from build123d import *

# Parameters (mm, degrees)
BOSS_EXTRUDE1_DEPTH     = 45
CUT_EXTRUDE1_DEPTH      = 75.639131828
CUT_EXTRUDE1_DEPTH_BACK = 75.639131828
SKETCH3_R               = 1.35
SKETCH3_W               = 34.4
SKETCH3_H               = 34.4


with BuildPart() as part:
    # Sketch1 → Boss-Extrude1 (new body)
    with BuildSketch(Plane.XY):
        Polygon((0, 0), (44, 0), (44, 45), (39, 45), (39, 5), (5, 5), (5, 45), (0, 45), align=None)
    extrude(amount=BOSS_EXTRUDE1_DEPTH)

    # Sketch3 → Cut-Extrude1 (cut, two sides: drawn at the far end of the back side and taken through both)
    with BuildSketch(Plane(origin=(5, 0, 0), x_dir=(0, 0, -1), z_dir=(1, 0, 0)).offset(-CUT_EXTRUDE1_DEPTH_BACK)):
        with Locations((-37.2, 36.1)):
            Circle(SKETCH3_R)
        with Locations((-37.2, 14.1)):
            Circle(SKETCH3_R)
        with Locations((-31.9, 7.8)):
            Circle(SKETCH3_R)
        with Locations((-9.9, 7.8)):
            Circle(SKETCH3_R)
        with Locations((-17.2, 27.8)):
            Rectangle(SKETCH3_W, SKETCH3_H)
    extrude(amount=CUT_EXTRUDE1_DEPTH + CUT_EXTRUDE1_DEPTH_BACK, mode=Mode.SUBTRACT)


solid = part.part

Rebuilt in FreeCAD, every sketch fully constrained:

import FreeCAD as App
import Part
import Sketcher

V = App.Vector

doc = App.newDocument("Part")
params = doc.addObject("Spreadsheet::Sheet", "Params")
for row, (alias, value) in enumerate([
    ("sketch1_width", "44 mm"),
    ("sketch1_width2", "5 mm"),
    ("sketch1_height", "45 mm"),
    ("sketch1_height2", "40 mm"),
    ("pad1_length", "45 mm"),
    ("sketch2_diameter", "2.7 mm"),
    ("sketch2_width", "34.4 mm"),
], start=1):
    params.set(f"A{row}", alias)
    params.set(f"B{row}", "=" + value)
    params.setAlias(f"B{row}", alias)

body = doc.addObject("PartDesign::Body", "Body")

# Sketch on XY plane
sketch1 = doc.addObject("Sketcher::SketchObject", "Sketch")
body.addObject(sketch1)
sketch1.AttachmentSupport = (doc.XY_Plane, [""])
sketch1.MapMode = "FlatFace"
sketch1.addGeometry([
    Part.LineSegment(V(0, 0, 0), V(44, 0, 0)),  # 0
    Part.LineSegment(V(44, 0, 0), V(44, 45, 0)),  # 1
    Part.LineSegment(V(44, 45, 0), V(39, 45, 0)),  # 2
    Part.LineSegment(V(39, 45, 0), V(39, 5, 0)),  # 3
    Part.LineSegment(V(39, 5, 0), V(5, 5, 0)),  # 4
    Part.LineSegment(V(5, 5, 0), V(5, 45, 0)),  # 5
    Part.LineSegment(V(5, 45, 0), V(0, 45, 0)),  # 6
    Part.LineSegment(V(0, 45, 0), V(0, 0, 0)),  # 7
], False)
sketch1.addConstraint([
    Sketcher.Constraint("Coincident", 0, 2, 1, 1),
    Sketcher.Constraint("Coincident", 1, 2, 2, 1),
    Sketcher.Constraint("Coincident", 2, 2, 3, 1),
    Sketcher.Constraint("Coincident", 3, 2, 4, 1),
    Sketcher.Constraint("Coincident", 4, 2, 5, 1),
    Sketcher.Constraint("Coincident", 5, 2, 6, 1),
    Sketcher.Constraint("Coincident", 6, 2, 7, 1),
    Sketcher.Constraint("Coincident", 7, 2, 0, 1),
    Sketcher.Constraint("Horizontal", 0),
    Sketcher.Constraint("Vertical", 1),
    Sketcher.Constraint("Horizontal", 2),
    Sketcher.Constraint("Vertical", 3),
    Sketcher.Constraint("Horizontal", 4),
    Sketcher.Constraint("Vertical", 5),
    Sketcher.Constraint("Horizontal", 6),
    Sketcher.Constraint("Vertical", 7),
    Sketcher.Constraint("Coincident", 7, 2, -1, 1),
    Sketcher.Constraint("Horizontal", 2, 2, 5, 2),
    Sketcher.Constraint("Equal", 2, 6),
    Sketcher.Constraint("DistanceX", 0, 1, 0, 2, 44.0),
    Sketcher.Constraint("DistanceX", 2, 2, 2, 1, 5.0),
    Sketcher.Constraint("DistanceY", 1, 1, 1, 2, 45.0),
    Sketcher.Constraint("DistanceY", 3, 2, 3, 1, 40.0),
])
sketch1.setExpression("Constraints[19]", "Params.sketch1_width")
sketch1.setExpression("Constraints[20]", "Params.sketch1_width2")
sketch1.setExpression("Constraints[21]", "Params.sketch1_height")
sketch1.setExpression("Constraints[22]", "Params.sketch1_height2")
pad1 = doc.addObject("PartDesign::Pad", "Pad")
body.addObject(pad1)
pad1.Profile = sketch1
pad1.setExpression("Length", "Params.pad1_length")

# Sketch on YZ plane
sketch2 = doc.addObject("Sketcher::SketchObject", "Sketch001")
body.addObject(sketch2)
sketch2.AttachmentSupport = (doc.YZ_Plane, [""])
sketch2.MapMode = "FlatFace"
sketch2.AttachmentOffset = App.Placement(V(0, 0, 5), App.Rotation())
sketch2.addGeometry([
    Part.Circle(V(36.1, 37.2, 0), V(0, 0, 1), 1.4),  # 0
    Part.Circle(V(14.1, 37.2, 0), V(0, 0, 1), 1.4),  # 1
    Part.Circle(V(7.8, 31.9, 0), V(0, 0, 1), 1.4),  # 2
    Part.Circle(V(7.8, 9.9, 0), V(0, 0, 1), 1.4),  # 3
    Part.LineSegment(V(45, 34.4, 0), V(10.6, 34.4, 0)),  # 4
    Part.LineSegment(V(10.6, 34.4, 0), V(10.6, 0, 0)),  # 5
    Part.LineSegment(V(10.6, 0, 0), V(45, 0, 0)),  # 6
    Part.LineSegment(V(45, 0, 0), V(45, 34.4, 0)),  # 7
], False)
sketch2.addConstraint([
    Sketcher.Constraint("Coincident", 4, 2, 5, 1),
    Sketcher.Constraint("Coincident", 5, 2, 6, 1),
    Sketcher.Constraint("Coincident", 6, 2, 7, 1),
    Sketcher.Constraint("Coincident", 7, 2, 4, 1),
    Sketcher.Constraint("Horizontal", 4),
    Sketcher.Constraint("Vertical", 5),
    Sketcher.Constraint("Horizontal", 6),
    Sketcher.Constraint("Vertical", 7),
    Sketcher.Constraint("Equal", 0, 1),
    Sketcher.Constraint("Equal", 1, 2),
    Sketcher.Constraint("Equal", 2, 3),
    Sketcher.Constraint("PointOnObject", 5, 2, -1),
    Sketcher.Constraint("Horizontal", 0, 3, 1, 3),
    Sketcher.Constraint("Vertical", 2, 3, 3, 3),
    Sketcher.Constraint("Equal", 6, 5),
    Sketcher.Constraint("Diameter", 0, 2.7),
    Sketcher.Constraint("DistanceX", 4, 2, 4, 1, 34.4),
    Sketcher.Constraint("DistanceX", -1, 1, 6, 2, 45.0),
    Sketcher.Constraint("DistanceX", 1, 3, 0, 3, 22.0),
    Sketcher.Constraint("DistanceY", 3, 3, 2, 3, 22.0),
    Sketcher.Constraint("DistanceX", -1, 1, 0, 3, 36.1),
    Sketcher.Constraint("DistanceY", -1, 1, 0, 3, 37.2),
    Sketcher.Constraint("DistanceX", -1, 1, 2, 3, 7.8),
    Sketcher.Constraint("DistanceY", -1, 1, 2, 3, 31.9),
])
sketch2.setExpression("Constraints[15]", "Params.sketch2_diameter")
sketch2.setExpression("Constraints[16]", "Params.sketch2_width")
pocket1 = doc.addObject("PartDesign::Pocket", "Pocket")
body.addObject(pocket1)
pocket1.Profile = sketch2
pocket1.Type = "ThroughAll"
pocket1.Midplane = True

doc.recompute()
